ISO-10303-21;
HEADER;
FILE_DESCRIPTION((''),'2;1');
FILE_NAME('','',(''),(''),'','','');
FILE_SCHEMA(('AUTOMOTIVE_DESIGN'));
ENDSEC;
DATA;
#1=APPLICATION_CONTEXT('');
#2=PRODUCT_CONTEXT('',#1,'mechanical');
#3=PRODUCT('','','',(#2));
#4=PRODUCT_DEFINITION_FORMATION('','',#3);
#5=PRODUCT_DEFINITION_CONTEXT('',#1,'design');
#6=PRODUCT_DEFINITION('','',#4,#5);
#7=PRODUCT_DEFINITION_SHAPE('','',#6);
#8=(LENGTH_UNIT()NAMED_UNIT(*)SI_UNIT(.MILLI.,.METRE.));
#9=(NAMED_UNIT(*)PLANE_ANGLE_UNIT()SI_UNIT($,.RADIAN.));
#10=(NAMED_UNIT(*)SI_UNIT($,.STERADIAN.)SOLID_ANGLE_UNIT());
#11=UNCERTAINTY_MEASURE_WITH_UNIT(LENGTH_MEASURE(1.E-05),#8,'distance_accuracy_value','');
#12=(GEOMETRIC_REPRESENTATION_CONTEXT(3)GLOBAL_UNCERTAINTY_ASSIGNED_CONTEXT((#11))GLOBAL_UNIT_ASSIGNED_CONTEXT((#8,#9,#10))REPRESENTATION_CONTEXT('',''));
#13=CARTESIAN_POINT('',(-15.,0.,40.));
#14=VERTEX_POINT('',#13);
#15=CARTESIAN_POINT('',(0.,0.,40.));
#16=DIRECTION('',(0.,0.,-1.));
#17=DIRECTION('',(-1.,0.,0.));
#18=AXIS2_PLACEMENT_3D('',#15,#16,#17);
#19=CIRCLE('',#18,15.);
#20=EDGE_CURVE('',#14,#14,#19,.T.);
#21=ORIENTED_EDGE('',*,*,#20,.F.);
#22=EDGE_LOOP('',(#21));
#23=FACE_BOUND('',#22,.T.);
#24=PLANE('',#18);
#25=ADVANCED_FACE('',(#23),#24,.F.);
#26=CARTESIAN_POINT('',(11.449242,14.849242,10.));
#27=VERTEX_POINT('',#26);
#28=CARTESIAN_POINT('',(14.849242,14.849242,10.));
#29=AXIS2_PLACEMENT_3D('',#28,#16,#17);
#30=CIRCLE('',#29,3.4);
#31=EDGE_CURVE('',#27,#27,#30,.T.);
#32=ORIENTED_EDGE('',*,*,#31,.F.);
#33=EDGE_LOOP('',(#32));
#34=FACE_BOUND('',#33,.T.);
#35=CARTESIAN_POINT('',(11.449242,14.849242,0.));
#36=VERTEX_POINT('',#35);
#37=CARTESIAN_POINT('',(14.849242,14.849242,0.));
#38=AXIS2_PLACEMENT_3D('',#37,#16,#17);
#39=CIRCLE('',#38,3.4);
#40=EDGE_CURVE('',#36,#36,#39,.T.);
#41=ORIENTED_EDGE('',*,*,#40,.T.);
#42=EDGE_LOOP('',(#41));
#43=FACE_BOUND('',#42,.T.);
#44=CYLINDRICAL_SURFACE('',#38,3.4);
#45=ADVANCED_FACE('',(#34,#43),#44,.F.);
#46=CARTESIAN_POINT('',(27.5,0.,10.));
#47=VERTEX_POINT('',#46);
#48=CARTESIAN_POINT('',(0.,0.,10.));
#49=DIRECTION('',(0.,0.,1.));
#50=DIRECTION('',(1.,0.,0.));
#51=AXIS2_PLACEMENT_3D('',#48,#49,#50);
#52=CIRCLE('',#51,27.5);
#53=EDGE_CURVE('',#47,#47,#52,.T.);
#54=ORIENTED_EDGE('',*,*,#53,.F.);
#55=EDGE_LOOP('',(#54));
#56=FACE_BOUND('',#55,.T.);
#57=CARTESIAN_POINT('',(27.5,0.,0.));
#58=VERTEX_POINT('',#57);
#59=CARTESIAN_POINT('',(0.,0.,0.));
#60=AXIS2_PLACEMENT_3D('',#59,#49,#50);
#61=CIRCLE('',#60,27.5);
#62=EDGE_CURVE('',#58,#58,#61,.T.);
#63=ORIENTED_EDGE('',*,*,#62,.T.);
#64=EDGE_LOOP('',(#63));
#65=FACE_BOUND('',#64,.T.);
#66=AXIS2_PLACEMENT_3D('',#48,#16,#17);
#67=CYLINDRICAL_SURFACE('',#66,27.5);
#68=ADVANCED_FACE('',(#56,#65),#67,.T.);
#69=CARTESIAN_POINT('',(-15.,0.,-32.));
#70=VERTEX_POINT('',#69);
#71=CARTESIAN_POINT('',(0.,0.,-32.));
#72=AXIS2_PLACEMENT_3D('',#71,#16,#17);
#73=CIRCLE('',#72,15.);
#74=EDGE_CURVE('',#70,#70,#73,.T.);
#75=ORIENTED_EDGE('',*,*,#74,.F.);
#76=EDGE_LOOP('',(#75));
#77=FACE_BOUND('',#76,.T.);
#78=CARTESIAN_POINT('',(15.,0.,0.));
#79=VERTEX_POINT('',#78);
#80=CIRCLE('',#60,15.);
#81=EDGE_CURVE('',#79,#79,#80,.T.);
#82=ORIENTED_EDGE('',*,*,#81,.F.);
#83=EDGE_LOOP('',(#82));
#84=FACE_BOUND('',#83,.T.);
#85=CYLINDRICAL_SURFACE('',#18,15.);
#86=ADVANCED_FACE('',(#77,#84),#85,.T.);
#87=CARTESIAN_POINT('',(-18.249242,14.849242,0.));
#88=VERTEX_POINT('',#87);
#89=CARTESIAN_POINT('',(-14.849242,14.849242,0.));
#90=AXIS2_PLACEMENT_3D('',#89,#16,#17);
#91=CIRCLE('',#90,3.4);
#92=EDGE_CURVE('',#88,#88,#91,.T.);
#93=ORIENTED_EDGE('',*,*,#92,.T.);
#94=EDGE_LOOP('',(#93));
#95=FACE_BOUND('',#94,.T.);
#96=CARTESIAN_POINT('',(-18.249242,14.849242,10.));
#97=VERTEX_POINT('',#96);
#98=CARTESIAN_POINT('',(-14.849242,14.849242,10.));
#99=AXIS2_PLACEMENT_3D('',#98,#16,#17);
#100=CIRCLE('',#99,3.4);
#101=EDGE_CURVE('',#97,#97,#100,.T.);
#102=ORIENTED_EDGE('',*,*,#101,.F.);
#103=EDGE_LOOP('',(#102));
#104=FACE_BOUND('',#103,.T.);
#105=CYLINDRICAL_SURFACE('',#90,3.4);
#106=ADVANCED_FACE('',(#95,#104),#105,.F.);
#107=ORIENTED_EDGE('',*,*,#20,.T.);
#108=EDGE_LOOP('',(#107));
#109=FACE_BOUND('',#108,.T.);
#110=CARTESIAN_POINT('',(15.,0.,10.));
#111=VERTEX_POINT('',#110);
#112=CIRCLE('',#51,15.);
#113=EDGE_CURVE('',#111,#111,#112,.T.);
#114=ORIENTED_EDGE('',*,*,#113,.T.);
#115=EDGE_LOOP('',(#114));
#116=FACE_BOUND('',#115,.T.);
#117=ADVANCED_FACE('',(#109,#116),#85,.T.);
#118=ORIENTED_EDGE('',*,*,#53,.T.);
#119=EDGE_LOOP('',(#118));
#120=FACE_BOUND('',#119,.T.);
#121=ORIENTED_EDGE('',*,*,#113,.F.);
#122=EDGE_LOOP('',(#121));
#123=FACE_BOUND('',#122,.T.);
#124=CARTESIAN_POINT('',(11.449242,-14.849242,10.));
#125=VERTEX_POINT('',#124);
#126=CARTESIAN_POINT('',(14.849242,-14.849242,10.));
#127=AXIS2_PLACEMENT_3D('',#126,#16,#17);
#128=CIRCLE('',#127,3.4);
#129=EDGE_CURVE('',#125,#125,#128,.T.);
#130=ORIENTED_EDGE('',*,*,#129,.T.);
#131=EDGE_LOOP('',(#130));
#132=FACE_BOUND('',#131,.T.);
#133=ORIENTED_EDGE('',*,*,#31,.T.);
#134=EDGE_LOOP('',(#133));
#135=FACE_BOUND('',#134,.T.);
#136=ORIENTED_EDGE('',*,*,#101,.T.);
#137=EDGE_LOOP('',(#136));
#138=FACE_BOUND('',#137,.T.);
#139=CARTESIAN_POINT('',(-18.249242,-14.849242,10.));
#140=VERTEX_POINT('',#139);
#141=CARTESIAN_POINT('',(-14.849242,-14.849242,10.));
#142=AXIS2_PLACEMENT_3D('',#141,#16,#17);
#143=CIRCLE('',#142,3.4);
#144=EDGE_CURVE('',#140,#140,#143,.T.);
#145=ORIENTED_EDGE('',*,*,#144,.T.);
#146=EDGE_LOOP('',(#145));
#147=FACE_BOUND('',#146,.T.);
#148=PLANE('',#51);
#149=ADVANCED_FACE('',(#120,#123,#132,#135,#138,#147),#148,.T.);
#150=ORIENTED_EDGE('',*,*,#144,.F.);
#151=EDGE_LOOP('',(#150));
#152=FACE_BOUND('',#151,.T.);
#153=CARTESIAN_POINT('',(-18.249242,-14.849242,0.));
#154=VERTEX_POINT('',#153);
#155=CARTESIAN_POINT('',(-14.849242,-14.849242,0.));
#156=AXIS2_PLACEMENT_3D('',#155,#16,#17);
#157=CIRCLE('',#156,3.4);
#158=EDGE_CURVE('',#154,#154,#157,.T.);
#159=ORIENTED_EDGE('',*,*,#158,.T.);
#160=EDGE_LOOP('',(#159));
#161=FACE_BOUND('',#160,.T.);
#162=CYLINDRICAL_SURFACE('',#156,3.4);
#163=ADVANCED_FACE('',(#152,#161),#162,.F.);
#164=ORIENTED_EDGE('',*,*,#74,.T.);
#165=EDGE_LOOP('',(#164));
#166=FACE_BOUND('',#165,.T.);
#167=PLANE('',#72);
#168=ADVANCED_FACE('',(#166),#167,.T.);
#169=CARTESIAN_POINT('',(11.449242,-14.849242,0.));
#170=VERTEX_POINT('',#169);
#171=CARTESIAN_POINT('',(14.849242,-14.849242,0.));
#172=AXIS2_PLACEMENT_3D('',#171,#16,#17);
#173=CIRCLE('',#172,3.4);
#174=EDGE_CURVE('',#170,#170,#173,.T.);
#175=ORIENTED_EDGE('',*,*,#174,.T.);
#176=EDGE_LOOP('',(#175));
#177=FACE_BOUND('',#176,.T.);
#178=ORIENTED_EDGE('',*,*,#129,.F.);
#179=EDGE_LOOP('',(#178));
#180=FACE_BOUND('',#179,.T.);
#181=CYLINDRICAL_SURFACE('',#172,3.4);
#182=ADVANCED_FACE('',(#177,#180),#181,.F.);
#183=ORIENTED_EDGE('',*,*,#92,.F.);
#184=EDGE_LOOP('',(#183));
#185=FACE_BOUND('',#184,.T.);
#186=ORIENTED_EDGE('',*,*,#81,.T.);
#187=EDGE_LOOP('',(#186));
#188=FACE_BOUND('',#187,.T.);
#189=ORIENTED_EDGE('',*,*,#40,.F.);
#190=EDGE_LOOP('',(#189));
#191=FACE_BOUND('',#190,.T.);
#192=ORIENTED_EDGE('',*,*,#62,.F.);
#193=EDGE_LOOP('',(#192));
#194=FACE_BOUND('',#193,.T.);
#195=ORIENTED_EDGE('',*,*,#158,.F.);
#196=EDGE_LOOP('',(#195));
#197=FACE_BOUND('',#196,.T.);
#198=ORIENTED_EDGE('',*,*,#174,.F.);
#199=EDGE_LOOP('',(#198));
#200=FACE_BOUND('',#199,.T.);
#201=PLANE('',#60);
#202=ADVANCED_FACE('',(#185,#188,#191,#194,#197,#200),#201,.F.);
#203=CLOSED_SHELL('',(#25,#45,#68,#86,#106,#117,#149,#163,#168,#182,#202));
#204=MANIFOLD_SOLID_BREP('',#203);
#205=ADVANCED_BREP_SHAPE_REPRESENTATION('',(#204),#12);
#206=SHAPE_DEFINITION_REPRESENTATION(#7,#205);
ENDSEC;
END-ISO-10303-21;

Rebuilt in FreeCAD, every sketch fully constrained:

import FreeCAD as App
import Part
import Sketcher

V = App.Vector
Q = App.Units.Quantity

doc = App.newDocument("Part")
body = doc.addObject("PartDesign::Body", "Body")

# Sketch on XY plane
sketch1 = body.newObject("Sketcher::SketchObject", "Sketch")
sketch1.AttachmentSupport = (doc.getObject("XY_Plane"), [""])
sketch1.MapMode = "FlatFace"
sketch1.addGeometry([
    Part.Circle(V(0, 0, 0), V(0, 0, 1), 27.5),  # 0
    Part.Circle(V(-14.8, -14.8, 0), V(0, 0, 1), 3),  # 1
    Part.Circle(V(14.8, -14.8, 0), V(0, 0, 1), 3),  # 2
    Part.Circle(V(-14.8, 14.8, 0), V(0, 0, 1), 3),  # 3
    Part.Circle(V(14.8, 14.8, 0), V(0, 0, 1), 3),  # 4
], False)
sketch1.addConstraint([
    Sketcher.Constraint("Coincident", 0, 3, -1, 1),
    Sketcher.Constraint("Equal", 1, 2),
    Sketcher.Constraint("Equal", 2, 3),
    Sketcher.Constraint("Equal", 3, 4),
    Sketcher.Constraint("Symmetric", 2, 3, 3, 3, -1, 1),
    Sketcher.Constraint("Symmetric", 1, 3, 4, 3, -1, 1),
    Sketcher.Constraint("Symmetric", 1, 3, 2, 3, -2),
    Sketcher.Constraint("Diameter", 0, Q("55 mm")),
    Sketcher.Constraint("Diameter", 1, Q("6 mm")),
    Sketcher.Constraint("DistanceX", 1, 3, -1, 1, Q("14.849242 mm")),
    Sketcher.Constraint("DistanceY", 1, 3, -1, 1, Q("14.849242 mm")),
])
pad1 = body.newObject("PartDesign::Pad", "Pad")
pad1.Profile = sketch1
pad1.Length = 10

# Sketch on XY plane
sketch2 = body.newObject("Sketcher::SketchObject", "Sketch001")
sketch2.AttachmentSupport = (doc.getObject("XY_Plane"), [""])
sketch2.MapMode = "FlatFace"
sketch2.addGeometry([
    Part.Circle(V(-14.8, 14.8, 0), V(0, 0, 1), 3.4),
    Part.Circle(V(14.8, 14.8, 0), V(0, 0, 1), 3.4),
    Part.Circle(V(14.8, -14.8, 0), V(0, 0, 1), 3.4),
    Part.Circle(V(-14.8, -14.8, 0), V(0, 0, 1), 3.4),
], False)
sketch2.addConstraint([
    Sketcher.Constraint("Equal", 0, 1),
    Sketcher.Constraint("Equal", 1, 2),
    Sketcher.Constraint("Equal", 2, 3),
    Sketcher.Constraint("Symmetric", 0, 3, 2, 3, -1, 1),
    Sketcher.Constraint("Symmetric", 1, 3, 3, 3, -1, 1),
    Sketcher.Constraint("Symmetric", 0, 3, 1, 3, -2),
    Sketcher.Constraint("Diameter", 0, Q("6.8 mm")),
    Sketcher.Constraint("DistanceX", 0, 3, -1, 1, Q("14.849242 mm")),
    Sketcher.Constraint("DistanceY", -1, 1, 0, 3, Q("14.849242 mm")),
])
doc.recompute()
hole = body.newObject("PartDesign::Hole", "Hole")
hole.Profile = sketch2
hole.ThreadType = "None"
hole.Diameter = 6.8
hole.DepthType = "ThroughAll"
hole.Reversed = True

# Sketch on XY plane
sketch3 = body.newObject("Sketcher::SketchObject", "Sketch002")
sketch3.AttachmentSupport = (doc.getObject("XY_Plane"), [""])
sketch3.MapMode = "FlatFace"
sketch3.addGeometry(Part.Circle(V(0, 0, 0), V(0, 0, 1), 15), False)
sketch3.addConstraint([
    Sketcher.Constraint("Coincident", 0, 3, -1, 1),
    Sketcher.Constraint("Diameter", 0, Q("30 mm")),
])
pad2 = body.newObject("PartDesign::Pad", "Pad001")
pad2.Profile = sketch3
pad2.Type = "TwoLengths"
pad2.Length = 32
pad2.Length2 = 40
pad2.Reversed = True

doc.recompute()
